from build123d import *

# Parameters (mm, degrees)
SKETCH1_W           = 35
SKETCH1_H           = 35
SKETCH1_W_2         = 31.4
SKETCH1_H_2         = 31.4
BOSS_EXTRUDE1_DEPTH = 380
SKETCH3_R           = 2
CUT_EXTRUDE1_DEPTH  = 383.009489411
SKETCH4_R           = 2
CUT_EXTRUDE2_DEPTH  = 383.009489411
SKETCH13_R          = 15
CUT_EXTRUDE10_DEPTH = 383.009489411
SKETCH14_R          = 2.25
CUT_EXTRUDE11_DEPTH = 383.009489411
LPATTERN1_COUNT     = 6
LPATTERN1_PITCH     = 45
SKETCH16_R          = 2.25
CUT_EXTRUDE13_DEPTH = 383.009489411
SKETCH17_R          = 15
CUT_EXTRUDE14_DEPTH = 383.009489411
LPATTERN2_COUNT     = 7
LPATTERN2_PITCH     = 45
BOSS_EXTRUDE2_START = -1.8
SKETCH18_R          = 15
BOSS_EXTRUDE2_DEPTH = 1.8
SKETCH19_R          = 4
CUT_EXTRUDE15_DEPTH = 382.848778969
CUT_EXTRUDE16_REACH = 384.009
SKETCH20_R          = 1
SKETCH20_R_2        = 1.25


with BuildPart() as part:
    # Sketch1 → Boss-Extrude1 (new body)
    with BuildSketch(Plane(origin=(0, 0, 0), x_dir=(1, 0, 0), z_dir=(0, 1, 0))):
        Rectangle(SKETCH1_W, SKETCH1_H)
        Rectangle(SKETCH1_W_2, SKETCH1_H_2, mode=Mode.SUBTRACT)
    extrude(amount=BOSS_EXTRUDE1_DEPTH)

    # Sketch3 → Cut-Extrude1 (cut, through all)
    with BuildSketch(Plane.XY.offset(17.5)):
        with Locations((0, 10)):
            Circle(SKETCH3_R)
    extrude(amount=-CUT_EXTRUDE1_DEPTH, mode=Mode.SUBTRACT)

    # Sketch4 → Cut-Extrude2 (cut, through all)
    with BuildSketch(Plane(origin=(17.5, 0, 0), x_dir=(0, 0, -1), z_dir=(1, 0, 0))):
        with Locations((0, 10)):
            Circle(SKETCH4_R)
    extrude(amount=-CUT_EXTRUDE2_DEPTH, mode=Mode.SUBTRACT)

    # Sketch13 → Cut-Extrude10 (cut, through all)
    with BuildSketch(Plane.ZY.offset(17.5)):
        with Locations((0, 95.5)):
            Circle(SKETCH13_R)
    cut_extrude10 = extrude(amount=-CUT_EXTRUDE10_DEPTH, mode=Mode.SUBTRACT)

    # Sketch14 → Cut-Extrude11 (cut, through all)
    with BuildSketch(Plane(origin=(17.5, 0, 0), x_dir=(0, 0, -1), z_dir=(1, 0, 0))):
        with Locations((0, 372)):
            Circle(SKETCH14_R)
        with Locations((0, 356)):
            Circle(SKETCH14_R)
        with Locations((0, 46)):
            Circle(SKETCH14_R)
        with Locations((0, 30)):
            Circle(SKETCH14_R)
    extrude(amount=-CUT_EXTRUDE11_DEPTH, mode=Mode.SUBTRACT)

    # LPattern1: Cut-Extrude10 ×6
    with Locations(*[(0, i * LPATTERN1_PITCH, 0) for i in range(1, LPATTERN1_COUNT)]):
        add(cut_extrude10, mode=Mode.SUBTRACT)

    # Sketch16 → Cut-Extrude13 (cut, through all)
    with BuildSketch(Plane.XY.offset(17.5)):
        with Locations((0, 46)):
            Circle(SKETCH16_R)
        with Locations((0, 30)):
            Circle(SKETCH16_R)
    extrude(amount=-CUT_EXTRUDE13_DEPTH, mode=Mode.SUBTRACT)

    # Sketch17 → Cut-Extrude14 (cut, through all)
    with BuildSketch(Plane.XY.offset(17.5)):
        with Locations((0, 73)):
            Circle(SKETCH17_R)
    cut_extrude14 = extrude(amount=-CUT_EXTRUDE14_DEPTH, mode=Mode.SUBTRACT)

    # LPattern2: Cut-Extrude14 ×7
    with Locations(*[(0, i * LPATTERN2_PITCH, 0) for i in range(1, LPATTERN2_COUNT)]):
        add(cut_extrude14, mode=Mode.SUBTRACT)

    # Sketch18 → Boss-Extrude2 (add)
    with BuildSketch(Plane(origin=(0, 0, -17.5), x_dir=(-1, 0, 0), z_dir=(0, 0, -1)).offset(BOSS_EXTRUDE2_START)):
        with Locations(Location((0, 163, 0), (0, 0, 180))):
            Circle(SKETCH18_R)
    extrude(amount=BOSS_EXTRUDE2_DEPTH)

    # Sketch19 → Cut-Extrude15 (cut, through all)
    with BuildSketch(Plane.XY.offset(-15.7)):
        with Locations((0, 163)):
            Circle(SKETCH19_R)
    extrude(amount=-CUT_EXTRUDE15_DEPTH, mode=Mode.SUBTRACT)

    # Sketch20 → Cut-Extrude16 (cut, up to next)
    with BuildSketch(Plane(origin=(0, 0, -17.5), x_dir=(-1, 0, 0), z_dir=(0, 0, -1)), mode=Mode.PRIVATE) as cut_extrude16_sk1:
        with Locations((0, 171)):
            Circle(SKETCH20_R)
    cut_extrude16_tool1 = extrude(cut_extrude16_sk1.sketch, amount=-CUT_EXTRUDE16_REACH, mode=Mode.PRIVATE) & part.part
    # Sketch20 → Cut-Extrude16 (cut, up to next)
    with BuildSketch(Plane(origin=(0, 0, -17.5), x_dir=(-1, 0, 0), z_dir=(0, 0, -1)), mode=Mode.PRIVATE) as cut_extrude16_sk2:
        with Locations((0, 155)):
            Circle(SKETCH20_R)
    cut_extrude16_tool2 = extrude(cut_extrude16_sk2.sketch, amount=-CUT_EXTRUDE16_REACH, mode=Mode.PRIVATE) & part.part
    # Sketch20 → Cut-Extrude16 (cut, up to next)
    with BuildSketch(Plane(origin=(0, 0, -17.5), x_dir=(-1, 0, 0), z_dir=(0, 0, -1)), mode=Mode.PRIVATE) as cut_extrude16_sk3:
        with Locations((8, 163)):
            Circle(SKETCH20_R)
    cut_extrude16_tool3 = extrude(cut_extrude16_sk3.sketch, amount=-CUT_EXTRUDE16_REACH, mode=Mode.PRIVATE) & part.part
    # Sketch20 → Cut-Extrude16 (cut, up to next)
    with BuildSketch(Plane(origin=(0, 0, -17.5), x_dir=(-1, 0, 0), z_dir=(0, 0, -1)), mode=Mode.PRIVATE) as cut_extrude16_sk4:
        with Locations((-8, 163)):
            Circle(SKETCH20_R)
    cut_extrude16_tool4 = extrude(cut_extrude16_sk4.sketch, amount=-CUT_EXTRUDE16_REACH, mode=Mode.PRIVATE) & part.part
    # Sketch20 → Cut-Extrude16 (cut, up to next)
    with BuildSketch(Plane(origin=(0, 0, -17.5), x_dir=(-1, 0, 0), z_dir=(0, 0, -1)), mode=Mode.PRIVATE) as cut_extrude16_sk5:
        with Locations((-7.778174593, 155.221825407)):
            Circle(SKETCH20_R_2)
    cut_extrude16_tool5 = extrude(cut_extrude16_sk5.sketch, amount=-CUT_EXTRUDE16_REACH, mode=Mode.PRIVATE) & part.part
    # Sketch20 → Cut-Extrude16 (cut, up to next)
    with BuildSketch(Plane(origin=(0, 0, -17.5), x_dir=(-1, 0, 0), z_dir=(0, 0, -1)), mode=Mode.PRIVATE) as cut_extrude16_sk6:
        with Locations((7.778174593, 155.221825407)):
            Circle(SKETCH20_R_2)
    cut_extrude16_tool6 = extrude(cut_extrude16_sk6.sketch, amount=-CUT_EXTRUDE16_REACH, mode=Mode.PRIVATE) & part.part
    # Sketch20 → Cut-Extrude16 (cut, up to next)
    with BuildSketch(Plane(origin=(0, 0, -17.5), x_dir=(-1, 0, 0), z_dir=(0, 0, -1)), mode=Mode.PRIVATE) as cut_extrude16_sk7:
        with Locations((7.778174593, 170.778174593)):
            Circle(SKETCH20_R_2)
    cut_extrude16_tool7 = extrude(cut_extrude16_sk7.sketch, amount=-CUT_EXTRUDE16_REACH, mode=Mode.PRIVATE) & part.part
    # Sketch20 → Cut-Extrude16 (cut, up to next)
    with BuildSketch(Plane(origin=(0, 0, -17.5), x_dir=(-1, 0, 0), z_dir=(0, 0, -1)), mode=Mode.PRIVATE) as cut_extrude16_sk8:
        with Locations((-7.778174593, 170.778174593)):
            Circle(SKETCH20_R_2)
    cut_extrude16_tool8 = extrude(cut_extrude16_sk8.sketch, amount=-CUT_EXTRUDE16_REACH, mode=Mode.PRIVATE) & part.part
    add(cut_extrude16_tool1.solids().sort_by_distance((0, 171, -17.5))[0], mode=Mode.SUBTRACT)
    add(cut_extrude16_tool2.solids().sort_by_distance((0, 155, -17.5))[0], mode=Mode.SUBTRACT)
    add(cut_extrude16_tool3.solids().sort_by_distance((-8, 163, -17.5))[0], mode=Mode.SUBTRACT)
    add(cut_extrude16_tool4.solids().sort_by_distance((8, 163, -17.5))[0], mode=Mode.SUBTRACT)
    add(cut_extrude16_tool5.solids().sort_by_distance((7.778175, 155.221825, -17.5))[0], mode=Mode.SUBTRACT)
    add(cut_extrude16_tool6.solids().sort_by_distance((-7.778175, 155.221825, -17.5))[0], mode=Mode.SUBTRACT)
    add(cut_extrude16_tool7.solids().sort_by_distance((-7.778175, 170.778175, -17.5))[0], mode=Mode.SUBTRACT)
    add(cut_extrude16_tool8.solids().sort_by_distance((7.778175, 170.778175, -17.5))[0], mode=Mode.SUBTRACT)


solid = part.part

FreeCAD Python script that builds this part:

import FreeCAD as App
import Part
import Sketcher
Q = App.Units.Quantity


def add_polygon(sketch, points):
    """Adds a closed chain of lines whose ends are joined by coincident constraints."""
    first, n = sketch.GeometryCount, len(points)
    for a, b in zip(points, points[1:] + points[:1]):
        sketch.addGeometry(Part.LineSegment(App.Vector(*a, 0), App.Vector(*b, 0)), False)
    for i in range(n):
        sketch.addConstraint(Sketcher.Constraint("Coincident", first + i, 2, first + (i + 1) % n, 1))

doc = App.newDocument("Part")
params = doc.addObject("Spreadsheet::Sheet", "Params")
for row, (alias, value) in enumerate([
    ("sketch1_width", "35 mm"),
    ("sketch1_width2", "31.4 mm"),
    ("pad1_length", "380 mm"),
    ("sketch2_diameter", "4 mm"),
    ("sketch3_diameter", "4 mm"),
    ("sketch4_diameter", "30 mm"),
    ("sketch5_diameter", "4.5 mm"),
    ("linearpattern_pitch", "45 mm"),
    ("sketch6_diameter", "4.5 mm"),
    ("sketch7_diameter", "30 mm"),
    ("linearpattern2_pitch", "45 mm"),
    ("sketch8_diameter", "30 mm"),
    ("pad2_length", "1.8 mm"),
    ("sketch9_diameter", "8 mm"),
    ("sketch10_diameter", "2 mm"),
    ("sketch11_diameter", "2 mm"),
    ("sketch12_diameter", "2 mm"),
    ("sketch13_diameter", "2 mm"),
    ("sketch14_diameter", "2.5 mm"),
    ("sketch15_diameter", "2.5 mm"),
    ("sketch16_diameter", "2.5 mm"),
    ("sketch17_diameter", "2.5 mm"),
], start=1):
    params.set(f"A{row}", alias)
    params.set(f"B{row}", "=" + value)
    params.setAlias(f"B{row}", alias)

body = doc.addObject("PartDesign::Body", "Body")

# Sketch on XZ plane
sketch1 = body.newObject("Sketcher::SketchObject", "Sketch")
sketch1.AttachmentSupport = (doc.getObject("XZ_Plane"), [""])
sketch1.MapMode = "FlatFace"
add_polygon(sketch1, [(-18, -18), (-18, 18), (18, 18), (18, -18)])  # lines 0-3
add_polygon(sketch1, [(16, 16), (-16, 16), (-16, -16), (16, -16)])  # lines 4-7
sketch1.addConstraint(Sketcher.Constraint("Vertical", 0))
sketch1.addConstraint(Sketcher.Constraint("Horizontal", 1))
sketch1.addConstraint(Sketcher.Constraint("Vertical", 2))
sketch1.addConstraint(Sketcher.Constraint("Horizontal", 3))
sketch1.addConstraint(Sketcher.Constraint("Horizontal", 4))
sketch1.addConstraint(Sketcher.Constraint("Vertical", 5))
sketch1.addConstraint(Sketcher.Constraint("Horizontal", 6))
sketch1.addConstraint(Sketcher.Constraint("Vertical", 7))
sketch1.addConstraint(Sketcher.Constraint("Symmetric", 0, 2, 2, 2, -1, 1))
sketch1.addConstraint(Sketcher.Constraint("Symmetric", 4, 2, 6, 2, -1, 1))
sketch1.addConstraint(Sketcher.Constraint("Equal", 3, 0))
sketch1.addConstraint(Sketcher.Constraint("Equal", 6, 5))
sketch1.addConstraint(Sketcher.Constraint("DistanceX", 1, 1, 1, 2, Q("35 mm")))
sketch1.addConstraint(Sketcher.Constraint("DistanceX", 4, 2, 4, 1, Q("31.4 mm")))
sketch1.setExpression("Constraints[20]", "Params.sketch1_width")
sketch1.setExpression("Constraints[21]", "Params.sketch1_width2")
pad1 = body.newObject("PartDesign::Pad", "Pad")
pad1.Profile = sketch1
pad1.setExpression("Length", "Params.pad1_length")
pad1.Reversed = True

# Sketch on XY plane
sketch2 = body.newObject("Sketcher::SketchObject", "Sketch001")
sketch2.AttachmentSupport = (doc.getObject("XY_Plane"), [""])
sketch2.MapMode = "FlatFace"
sketch2.AttachmentOffset = App.Placement(App.Vector(0, 0, 17.5), App.Rotation())
sketch2.addGeometry(Part.Circle(App.Vector(0, 10, 0), App.Vector(0, 0, 1), 2), False)
sketch2.addConstraint(Sketcher.Constraint("PointOnObject", 0, 3, -2))
sketch2.addConstraint(Sketcher.Constraint("Diameter", 0, Q("4 mm")))
sketch2.addConstraint(Sketcher.Constraint("DistanceY", -1, 1, 0, 3, Q("10 mm")))
sketch2.setExpression("Constraints[1]", "Params.sketch2_diameter")
pocket1 = body.newObject("PartDesign::Pocket", "Pocket")
pocket1.Profile = sketch2
pocket1.Type = "ThroughAll"

# Sketch on YZ plane
sketch3 = body.newObject("Sketcher::SketchObject", "Sketch002")
sketch3.AttachmentSupport = (doc.getObject("YZ_Plane"), [""])
sketch3.MapMode = "FlatFace"
sketch3.AttachmentOffset = App.Placement(App.Vector(0, 0, 17.5), App.Rotation())
sketch3.addGeometry(Part.Circle(App.Vector(10, 0, 0), App.Vector(0, 0, 1), 2), False)
sketch3.addConstraint(Sketcher.Constraint("PointOnObject", 0, 3, -1))
sketch3.addConstraint(Sketcher.Constraint("Diameter", 0, Q("4 mm")))
sketch3.addConstraint(Sketcher.Constraint("DistanceX", -1, 1, 0, 3, Q("10 mm")))
sketch3.setExpression("Constraints[1]", "Params.sketch3_diameter")
pocket2 = body.newObject("PartDesign::Pocket", "Pocket001")
pocket2.Profile = sketch3
pocket2.Type = "ThroughAll"

# Sketch on YZ plane
sketch4 = body.newObject("Sketcher::SketchObject", "Sketch003")
sketch4.AttachmentSupport = (doc.getObject("YZ_Plane"), [""])
sketch4.MapMode = "FlatFace"
sketch4.AttachmentOffset = App.Placement(App.Vector(0, 0, -17.5), App.Rotation())
sketch4.addGeometry(Part.Circle(App.Vector(96, 0, 0), App.Vector(0, 0, 1), 15), False)
sketch4.addConstraint(Sketcher.Constraint("PointOnObject", 0, 3, -1))
sketch4.addConstraint(Sketcher.Constraint("Diameter", 0, Q("30 mm")))
sketch4.addConstraint(Sketcher.Constraint("DistanceX", -1, 1, 0, 3, Q("95.5 mm")))
sketch4.setExpression("Constraints[1]", "Params.sketch4_diameter")
pocket3 = body.newObject("PartDesign::Pocket", "Pocket002")
pocket3.Profile = sketch4
pocket3.Type = "ThroughAll"
pocket3.Reversed = True

# Sketch on YZ plane
sketch5 = body.newObject("Sketcher::SketchObject", "Sketch004")
sketch5.AttachmentSupport = (doc.getObject("YZ_Plane"), [""])
sketch5.MapMode = "FlatFace"
sketch5.AttachmentOffset = App.Placement(App.Vector(0, 0, 17.5), App.Rotation())
sketch5.addGeometry(Part.Circle(App.Vector(372, 0, 0), App.Vector(0, 0, 1), 2.2), False)
sketch5.addGeometry(Part.Circle(App.Vector(356, 0, 0), App.Vector(0, 0, 1), 2.2), False)
sketch5.addGeometry(Part.Circle(App.Vector(46, 0, 0), App.Vector(0, 0, 1), 2.2), False)
sketch5.addGeometry(Part.Circle(App.Vector(30, 0, 0), App.Vector(0, 0, 1), 2.2), False)
sketch5.addConstraint(Sketcher.Constraint("Equal", 0, 1))
sketch5.addConstraint(Sketcher.Constraint("Equal", 1, 2))
sketch5.addConstraint(Sketcher.Constraint("Equal", 2, 3))
sketch5.addConstraint(Sketcher.Constraint("PointOnObject", 0, 3, -1))
sketch5.addConstraint(Sketcher.Constraint("PointOnObject", 1, 3, -1))
sketch5.addConstraint(Sketcher.Constraint("PointOnObject", 2, 3, -1))
sketch5.addConstraint(Sketcher.Constraint("PointOnObject", 3, 3, -1))
sketch5.addConstraint(Sketcher.Constraint("Diameter", 0, Q("4.5 mm")))
sketch5.addConstraint(Sketcher.Constraint("DistanceX", -1, 1, 0, 3, Q("372 mm")))
sketch5.addConstraint(Sketcher.Constraint("DistanceX", -1, 1, 1, 3, Q("356 mm")))
sketch5.addConstraint(Sketcher.Constraint("DistanceX", -1, 1, 2, 3, Q("46 mm")))
sketch5.addConstraint(Sketcher.Constraint("DistanceX", -1, 1, 3, 3, Q("30 mm")))
sketch5.setExpression("Constraints[7]", "Params.sketch5_diameter")
pocket4 = body.newObject("PartDesign::Pocket", "Pocket003")
pocket4.Profile = sketch5
pocket4.Type = "ThroughAll"
doc.recompute()

linearpattern = body.newObject("PartDesign::LinearPattern", "LinearPattern")
linearpattern.Originals = [pocket3]
linearpattern.Direction = (doc.getObject("Y_Axis"), [""])
linearpattern.Mode = "offset"
linearpattern.setExpression("Offset", "Params.linearpattern_pitch")
linearpattern.Occurrences = 6
body.Tip = linearpattern

# Sketch on XY plane
sketch6 = body.newObject("Sketcher::SketchObject", "Sketch005")
sketch6.AttachmentSupport = (doc.getObject("XY_Plane"), [""])
sketch6.MapMode = "FlatFace"
sketch6.AttachmentOffset = App.Placement(App.Vector(0, 0, 17.5), App.Rotation())
sketch6.addGeometry(Part.Circle(App.Vector(0, 46, 0), App.Vector(0, 0, 1), 2.2), False)
sketch6.addGeometry(Part.Circle(App.Vector(0, 30, 0), App.Vector(0, 0, 1), 2.2), False)
sketch6.addConstraint(Sketcher.Constraint("Equal", 0, 1))
sketch6.addConstraint(Sketcher.Constraint("PointOnObject", 0, 3, -2))
sketch6.addConstraint(Sketcher.Constraint("PointOnObject", 1, 3, -2))
sketch6.addConstraint(Sketcher.Constraint("Diameter", 0, Q("4.5 mm")))
sketch6.addConstraint(Sketcher.Constraint("DistanceY", -1, 1, 0, 3, Q("46 mm")))
sketch6.addConstraint(Sketcher.Constraint("DistanceY", -1, 1, 1, 3, Q("30 mm")))
sketch6.setExpression("Constraints[3]", "Params.sketch6_diameter")
pocket5 = body.newObject("PartDesign::Pocket", "Pocket004")
pocket5.Profile = sketch6
pocket5.Type = "ThroughAll"

# Sketch on XY plane
sketch7 = body.newObject("Sketcher::SketchObject", "Sketch006")
sketch7.AttachmentSupport = (doc.getObject("XY_Plane"), [""])
sketch7.MapMode = "FlatFace"
sketch7.AttachmentOffset = App.Placement(App.Vector(0, 0, 17.5), App.Rotation())
sketch7.addGeometry(Part.Circle(App.Vector(0, 73, 0), App.Vector(0, 0, 1), 15), False)
sketch7.addConstraint(Sketcher.Constraint("PointOnObject", 0, 3, -2))
sketch7.addConstraint(Sketcher.Constraint("Diameter", 0, Q("30 mm")))
sketch7.addConstraint(Sketcher.Constraint("DistanceY", -1, 1, 0, 3, Q("73 mm")))
sketch7.setExpression("Constraints[1]", "Params.sketch7_diameter")
pocket6 = body.newObject("PartDesign::Pocket", "Pocket005")
pocket6.Profile = sketch7
pocket6.Type = "ThroughAll"
doc.recompute()

linearpattern2 = body.newObject("PartDesign::LinearPattern", "LinearPattern001")
linearpattern2.Originals = [pocket6]
linearpattern2.Direction = (doc.getObject("Y_Axis"), [""])
linearpattern2.Mode = "offset"
linearpattern2.setExpression("Offset", "Params.linearpattern2_pitch")
linearpattern2.Occurrences = 7
body.Tip = linearpattern2

# Sketch on XY plane
sketch8 = body.newObject("Sketcher::SketchObject", "Sketch007")
sketch8.AttachmentSupport = (doc.getObject("XY_Plane"), [""])
sketch8.MapMode = "FlatFace"
sketch8.AttachmentOffset = App.Placement(App.Vector(0, 0, -15.7), App.Rotation())
sketch8.addGeometry(Part.Circle(App.Vector(0, 163, 0), App.Vector(0, 0, 1), 15), False)
sketch8.addConstraint(Sketcher.Constraint("PointOnObject", 0, 3, -2))
sketch8.addConstraint(Sketcher.Constraint("Diameter", 0, Q("30 mm")))
sketch8.addConstraint(Sketcher.Constraint("DistanceY", -1, 1, 0, 3, Q("163 mm")))
sketch8.setExpression("Constraints[1]", "Params.sketch8_diameter")
pad2 = body.newObject("PartDesign::Pad", "Pad001")
pad2.Profile = sketch8
pad2.setExpression("Length", "Params.pad2_length")
pad2.Reversed = True

# Sketch on XY plane
sketch9 = body.newObject("Sketcher::SketchObject", "Sketch008")
sketch9.AttachmentSupport = (doc.getObject("XY_Plane"), [""])
sketch9.MapMode = "FlatFace"
sketch9.AttachmentOffset = App.Placement(App.Vector(0, 0, -15.7), App.Rotation())
sketch9.addGeometry(Part.Circle(App.Vector(0, 163, 0), App.Vector(0, 0, 1), 4), False)
sketch9.addConstraint(Sketcher.Constraint("PointOnObject", 0, 3, -2))
sketch9.addConstraint(Sketcher.Constraint("Diameter", 0, Q("8 mm")))
sketch9.addConstraint(Sketcher.Constraint("DistanceY", -1, 1, 0, 3, Q("163 mm")))
sketch9.setExpression("Constraints[1]", "Params.sketch9_diameter")
pocket7 = body.newObject("PartDesign::Pocket", "Pocket006")
pocket7.Profile = sketch9
pocket7.Type = "ThroughAll"

# Sketch on XY plane
sketch10 = body.newObject("Sketcher::SketchObject", "Sketch009")
sketch10.AttachmentSupport = (doc.getObject("XY_Plane"), [""])
sketch10.MapMode = "FlatFace"
sketch10.AttachmentOffset = App.Placement(App.Vector(0, 0, -17.5), App.Rotation())
sketch10.addGeometry(Part.Circle(App.Vector(0, 171, 0), App.Vector(0, 0, 1), 1), False)
sketch10.addConstraint(Sketcher.Constraint("PointOnObject", 0, 3, -2))
sketch10.addConstraint(Sketcher.Constraint("Diameter", 0, Q("2 mm")))
sketch10.addConstraint(Sketcher.Constraint("DistanceY", -1, 1, 0, 3, Q("171 mm")))
sketch10.setExpression("Constraints[1]", "Params.sketch10_diameter")
pocket8 = body.newObject("PartDesign::Pocket", "Pocket007")
pocket8.Profile = sketch10
pocket8.Type = "UpToFirst"
pocket8.Reversed = True

# Sketch on XY plane
sketch11 = body.newObject("Sketcher::SketchObject", "Sketch010")
sketch11.AttachmentSupport = (doc.getObject("XY_Plane"), [""])
sketch11.MapMode = "FlatFace"
sketch11.AttachmentOffset = App.Placement(App.Vector(0, 0, -17.5), App.Rotation())
sketch11.addGeometry(Part.Circle(App.Vector(0, 155, 0), App.Vector(0, 0, 1), 1), False)
sketch11.addConstraint(Sketcher.Constraint("PointOnObject", 0, 3, -2))
sketch11.addConstraint(Sketcher.Constraint("Diameter", 0, Q("2 mm")))
sketch11.addConstraint(Sketcher.Constraint("DistanceY", -1, 1, 0, 3, Q("155 mm")))
sketch11.setExpression("Constraints[1]", "Params.sketch11_diameter")
pocket9 = body.newObject("PartDesign::Pocket", "Pocket008")
pocket9.Profile = sketch11
pocket9.Type = "UpToFirst"
pocket9.Reversed = True

# Sketch on XY plane
sketch12 = body.newObject("Sketcher::SketchObject", "Sketch011")
sketch12.AttachmentSupport = (doc.getObject("XY_Plane"), [""])
sketch12.MapMode = "FlatFace"
sketch12.AttachmentOffset = App.Placement(App.Vector(0, 0, -17.5), App.Rotation())
sketch12.addGeometry(Part.Circle(App.Vector(-8, 163, 0), App.Vector(0, 0, 1), 1), False)
sketch12.addConstraint(Sketcher.Constraint("Diameter", 0, Q("2 mm")))
sketch12.addConstraint(Sketcher.Constraint("DistanceX", 0, 3, -1, 1, Q("8 mm")))
sketch12.addConstraint(Sketcher.Constraint("DistanceY", -1, 1, 0, 3, Q("163 mm")))
sketch12.setExpression("Constraints[0]", "Params.sketch12_diameter")
pocket10 = body.newObject("PartDesign::Pocket", "Pocket009")
pocket10.Profile = sketch12
pocket10.Type = "UpToFirst"
pocket10.Reversed = True

# Sketch on XY plane
sketch13 = body.newObject("Sketcher::SketchObject", "Sketch012")
sketch13.AttachmentSupport = (doc.getObject("XY_Plane"), [""])
sketch13.MapMode = "FlatFace"
sketch13.AttachmentOffset = App.Placement(App.Vector(0, 0, -17.5), App.Rotation())
sketch13.addGeometry(Part.Circle(App.Vector(8, 163, 0), App.Vector(0, 0, 1), 1), False)
sketch13.addConstraint(Sketcher.Constraint("Diameter", 0, Q("2 mm")))
sketch13.addConstraint(Sketcher.Constraint("DistanceX", -1, 1, 0, 3, Q("8 mm")))
sketch13.addConstraint(Sketcher.Constraint("DistanceY", -1, 1, 0, 3, Q("163 mm")))
sketch13.setExpression("Constraints[0]", "Params.sketch13_diameter")
pocket11 = body.newObject("PartDesign::Pocket", "Pocket010")
pocket11.Profile = sketch13
pocket11.Type = "UpToFirst"
pocket11.Reversed = True

# Sketch on XY plane
sketch14 = body.newObject("Sketcher::SketchObject", "Sketch013")
sketch14.AttachmentSupport = (doc.getObject("XY_Plane"), [""])
sketch14.MapMode = "FlatFace"
sketch14.AttachmentOffset = App.Placement(App.Vector(0, 0, -17.5), App.Rotation())
sketch14.addGeometry(Part.Circle(App.Vector(7.8, 155.2, 0), App.Vector(0, 0, 1), 1.2), False)
sketch14.addConstraint(Sketcher.Constraint("Diameter", 0, Q("2.5 mm")))
sketch14.addConstraint(Sketcher.Constraint("DistanceX", -1, 1, 0, 3, Q("7.778175 mm")))
sketch14.addConstraint(Sketcher.Constraint("DistanceY", -1, 1, 0, 3, Q("155.221825 mm")))
sketch14.setExpression("Constraints[0]", "Params.sketch14_diameter")
pocket12 = body.newObject("PartDesign::Pocket", "Pocket011")
pocket12.Profile = sketch14
pocket12.Type = "UpToFirst"
pocket12.Reversed = True

# Sketch on XY plane
sketch15 = body.newObject("Sketcher::SketchObject", "Sketch014")
sketch15.AttachmentSupport = (doc.getObject("XY_Plane"), [""])
sketch15.MapMode = "FlatFace"
sketch15.AttachmentOffset = App.Placement(App.Vector(0, 0, -17.5), App.Rotation())
sketch15.addGeometry(Part.Circle(App.Vector(-7.8, 155.2, 0), App.Vector(0, 0, 1), 1.2), False)
sketch15.addConstraint(Sketcher.Constraint("Diameter", 0, Q("2.5 mm")))
sketch15.addConstraint(Sketcher.Constraint("DistanceX", 0, 3, -1, 1, Q("7.778175 mm")))
sketch15.addConstraint(Sketcher.Constraint("DistanceY", -1, 1, 0, 3, Q("155.221825 mm")))
sketch15.setExpression("Constraints[0]", "Params.sketch15_diameter")
pocket13 = body.newObject("PartDesign::Pocket", "Pocket012")
pocket13.Profile = sketch15
pocket13.Type = "UpToFirst"
pocket13.Reversed = True

# Sketch on XY plane
sketch16 = body.newObject("Sketcher::SketchObject", "Sketch015")
sketch16.AttachmentSupport = (doc.getObject("XY_Plane"), [""])
sketch16.MapMode = "FlatFace"
sketch16.AttachmentOffset = App.Placement(App.Vector(0, 0, -17.5), App.Rotation())
sketch16.addGeometry(Part.Circle(App.Vector(-7.8, 170.8, 0), App.Vector(0, 0, 1), 1.2), False)
sketch16.addConstraint(Sketcher.Constraint("Diameter", 0, Q("2.5 mm")))
sketch16.addConstraint(Sketcher.Constraint("DistanceX", 0, 3, -1, 1, Q("7.778175 mm")))
sketch16.addConstraint(Sketcher.Constraint("DistanceY", -1, 1, 0, 3, Q("170.778175 mm")))
sketch16.setExpression("Constraints[0]", "Params.sketch16_diameter")
pocket14 = body.newObject("PartDesign::Pocket", "Pocket013")
pocket14.Profile = sketch16
pocket14.Type = "UpToFirst"
pocket14.Reversed = True

# Sketch on XY plane
sketch17 = body.newObject("Sketcher::SketchObject", "Sketch016")
sketch17.AttachmentSupport = (doc.getObject("XY_Plane"), [""])
sketch17.MapMode = "FlatFace"
sketch17.AttachmentOffset = App.Placement(App.Vector(0, 0, -17.5), App.Rotation())
sketch17.addGeometry(Part.Circle(App.Vector(7.8, 170.8, 0), App.Vector(0, 0, 1), 1.2), False)
sketch17.addConstraint(Sketcher.Constraint("Diameter", 0, Q("2.5 mm")))
sketch17.addConstraint(Sketcher.Constraint("DistanceX", -1, 1, 0, 3, Q("7.778175 mm")))
sketch17.addConstraint(Sketcher.Constraint("DistanceY", -1, 1, 0, 3, Q("170.778175 mm")))
sketch17.setExpression("Constraints[0]", "Params.sketch17_diameter")
pocket15 = body.newObject("PartDesign::Pocket", "Pocket014")
pocket15.Profile = sketch17
pocket15.Type = "UpToFirst"
pocket15.Reversed = True

doc.recompute()
